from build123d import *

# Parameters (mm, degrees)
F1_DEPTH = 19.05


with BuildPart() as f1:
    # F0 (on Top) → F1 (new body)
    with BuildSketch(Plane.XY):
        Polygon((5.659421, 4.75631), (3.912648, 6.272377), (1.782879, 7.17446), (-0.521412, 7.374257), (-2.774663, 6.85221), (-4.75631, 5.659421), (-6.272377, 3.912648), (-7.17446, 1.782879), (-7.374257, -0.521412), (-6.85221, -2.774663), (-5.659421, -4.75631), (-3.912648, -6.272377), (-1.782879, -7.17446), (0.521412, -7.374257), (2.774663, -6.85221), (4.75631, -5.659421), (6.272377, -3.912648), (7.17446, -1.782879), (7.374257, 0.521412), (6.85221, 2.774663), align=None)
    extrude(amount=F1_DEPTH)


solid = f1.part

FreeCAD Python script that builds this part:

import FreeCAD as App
import Part
import Sketcher
from FreeCAD import Vector
Q = App.Units.Quantity

doc = App.newDocument("Part")
params = doc.addObject("Spreadsheet::Sheet", "Params")
for row, (alias, value) in enumerate([
    ("pad1_length", "0.75 in"),
], start=1):
    params.set(f"A{row}", alias)
    params.set(f"B{row}", "=" + value)
    params.setAlias(f"B{row}", alias)

body = doc.addObject("PartDesign::Body", "Body")

# Sketch on XY plane
sketch1 = body.newObject("Sketcher::SketchObject", "Sketch")
sketch1.AttachmentSupport = (doc.getObject("XY_Plane"), [""])
sketch1.MapMode = "FlatFace"
sketch1.addGeometry([
    Part.LineSegment(Vector(5.659421, 4.75631, 0), Vector(3.912648, 6.272377, 0)),  # 0
    Part.LineSegment(Vector(3.912648, 6.272377, 0), Vector(1.782879, 7.17446, 0)),  # 1
    Part.LineSegment(Vector(1.782879, 7.17446, 0), Vector(-0.521412, 7.374257, 0)),  # 2
    Part.LineSegment(Vector(-0.521412, 7.374257, 0), Vector(-2.774663, 6.85221, 0)),  # 3
    Part.LineSegment(Vector(-2.774663, 6.85221, 0), Vector(-4.75631, 5.659421, 0)),  # 4
    Part.LineSegment(Vector(-4.75631, 5.659421, 0), Vector(-6.272377, 3.912648, 0)),  # 5
    Part.LineSegment(Vector(-6.272377, 3.912648, 0), Vector(-7.17446, 1.782879, 0)),  # 6
    Part.LineSegment(Vector(-7.17446, 1.782879, 0), Vector(-7.374257, -0.521412, 0)),  # 7
    Part.LineSegment(Vector(-7.374257, -0.521412, 0), Vector(-6.85221, -2.774663, 0)),  # 8
    Part.LineSegment(Vector(-6.85221, -2.774663, 0), Vector(-5.659421, -4.75631, 0)),  # 9
    Part.LineSegment(Vector(-5.659421, -4.75631, 0), Vector(-3.912648, -6.272377, 0)),  # 10
    Part.LineSegment(Vector(-3.912648, -6.272377, 0), Vector(-1.782879, -7.17446, 0)),  # 11
    Part.LineSegment(Vector(-1.782879, -7.17446, 0), Vector(0.521412, -7.374257, 0)),  # 12
    Part.LineSegment(Vector(0.521412, -7.374257, 0), Vector(2.774663, -6.85221, 0)),  # 13
    Part.LineSegment(Vector(2.774663, -6.85221, 0), Vector(4.75631, -5.659421, 0)),  # 14
    Part.LineSegment(Vector(4.75631, -5.659421, 0), Vector(6.272377, -3.912648, 0)),  # 15
    Part.LineSegment(Vector(6.272377, -3.912648, 0), Vector(7.17446, -1.782879, 0)),  # 16
    Part.LineSegment(Vector(7.17446, -1.782879, 0), Vector(7.374257, 0.521412, 0)),  # 17
    Part.LineSegment(Vector(7.374257, 0.521412, 0), Vector(6.85221, 2.774663, 0)),  # 18
    Part.LineSegment(Vector(6.85221, 2.774663, 0), Vector(5.659421, 4.75631, 0)),  # 19
], False)
sketch1.addConstraint([
    Sketcher.Constraint("Coincident", 0, 2, 1, 1),
    Sketcher.Constraint("Coincident", 1, 2, 2, 1),
    Sketcher.Constraint("Coincident", 2, 2, 3, 1),
    Sketcher.Constraint("Coincident", 3, 2, 4, 1),
    Sketcher.Constraint("Coincident", 4, 2, 5, 1),
    Sketcher.Constraint("Coincident", 5, 2, 6, 1),
    Sketcher.Constraint("Coincident", 6, 2, 7, 1),
    Sketcher.Constraint("Coincident", 7, 2, 8, 1),
    Sketcher.Constraint("Coincident", 8, 2, 9, 1),
    Sketcher.Constraint("Coincident", 9, 2, 10, 1),
    Sketcher.Constraint("Coincident", 10, 2, 11, 1),
    Sketcher.Constraint("Coincident", 11, 2, 12, 1),
    Sketcher.Constraint("Coincident", 12, 2, 13, 1),
    Sketcher.Constraint("Coincident", 13, 2, 14, 1),
    Sketcher.Constraint("Coincident", 14, 2, 15, 1),
    Sketcher.Constraint("Coincident", 15, 2, 16, 1),
    Sketcher.Constraint("Coincident", 16, 2, 17, 1),
    Sketcher.Constraint("Coincident", 17, 2, 18, 1),
    Sketcher.Constraint("Coincident", 18, 2, 19, 1),
    Sketcher.Constraint("Coincident", 19, 2, 0, 1),
    Sketcher.Constraint("DistanceY", 7, 2, 3, 2, Q("0.2903001 in")),
    Sketcher.Constraint("DistanceX", 8, 2, 12, 2, Q("0.2903001 in")),
    Sketcher.Constraint("DistanceX", 4, 2, 2, 2, 4.234898),
    Sketcher.Constraint("DistanceX", 8, 2, 4, 2, 2.0959),
    Sketcher.Constraint("DistanceY", 9, 2, 7, 2, 4.234898),
    Sketcher.Constraint("DistanceY", 13, 2, 9, 2, 2.0959),
    Sketcher.Constraint("DistanceX", 12, 2, 14, 2, 4.234898),
    Sketcher.Constraint("DistanceY", 17, 2, 19, 2, 4.234898),
    Sketcher.Constraint("DistanceX", -1, 1, 1, 2, 1.782879),
    Sketcher.Constraint("DistanceY", -1, 1, 1, 2, 7.17446),
    Sketcher.Constraint("DistanceX", 2, 2, -1, 1, 0.521412),
    Sketcher.Constraint("DistanceY", -1, 1, 3, 2, 6.85221),
    Sketcher.Constraint("DistanceY", -1, 1, 4, 2, 5.659421),
    Sketcher.Constraint("DistanceX", 6, 2, -1, 1, 7.17446),
    Sketcher.Constraint("DistanceY", -1, 1, 6, 2, 1.782879),
    Sketcher.Constraint("DistanceX", 9, 2, -1, 1, 5.659421),
    Sketcher.Constraint("DistanceX", 11, 2, -1, 1, 1.782879),
    Sketcher.Constraint("DistanceY", 11, 2, -1, 1, 7.17446),
    Sketcher.Constraint("DistanceY", 14, 2, -1, 1, 5.659421),
    Sketcher.Constraint("DistanceX", -1, 1, 16, 2, 7.17446),
    Sketcher.Constraint("DistanceY", 16, 2, -1, 1, 1.782879),
    Sketcher.Constraint("DistanceY", -1, 1, 17, 2, 0.521412),
    Sketcher.Constraint("DistanceX", -1, 1, 18, 2, 6.85221),
    Sketcher.Constraint("DistanceX", -1, 1, 19, 2, 5.659421),
    Sketcher.Constraint("DistanceX", 1, 2, 0, 2, 2.129769),
    Sketcher.Constraint("DistanceY", 0, 2, 2, 2, 1.10188),
    Sketcher.Constraint("DistanceX", 3, 2, 2, 2, 2.253251),
    Sketcher.Constraint("DistanceY", 5, 2, 2, 2, 3.461609),
    Sketcher.Constraint("DistanceY", 5, 2, 1, 2, 3.261812),
    Sketcher.Constraint("DistanceX", 7, 2, 5, 2, 1.10188),
    Sketcher.Constraint("DistanceY", 8, 2, 7, 2, 2.253251),
    Sketcher.Constraint("DistanceX", 7, 2, 10, 2, 3.461609),
    Sketcher.Constraint("DistanceX", 6, 2, 10, 2, 3.261812),
    Sketcher.Constraint("DistanceY", 12, 2, 10, 2, 1.10188),
    Sketcher.Constraint("DistanceX", 12, 2, 13, 2, 2.253251),
    Sketcher.Constraint("DistanceY", 12, 2, 15, 2, 3.461609),
    Sketcher.Constraint("DistanceY", 11, 2, 15, 2, 3.261812),
    Sketcher.Constraint("DistanceX", 0, 2, 15, 2, 2.359729),
    Sketcher.Constraint("DistanceX", 15, 2, 17, 2, 1.10188),
    Sketcher.Constraint("DistanceY", 17, 2, 18, 2, 2.253251),
])
pad1 = body.newObject("PartDesign::Pad", "Pad")
pad1.Profile = sketch1
pad1.setExpression("Length", "Params.pad1_length")

doc.recompute()
